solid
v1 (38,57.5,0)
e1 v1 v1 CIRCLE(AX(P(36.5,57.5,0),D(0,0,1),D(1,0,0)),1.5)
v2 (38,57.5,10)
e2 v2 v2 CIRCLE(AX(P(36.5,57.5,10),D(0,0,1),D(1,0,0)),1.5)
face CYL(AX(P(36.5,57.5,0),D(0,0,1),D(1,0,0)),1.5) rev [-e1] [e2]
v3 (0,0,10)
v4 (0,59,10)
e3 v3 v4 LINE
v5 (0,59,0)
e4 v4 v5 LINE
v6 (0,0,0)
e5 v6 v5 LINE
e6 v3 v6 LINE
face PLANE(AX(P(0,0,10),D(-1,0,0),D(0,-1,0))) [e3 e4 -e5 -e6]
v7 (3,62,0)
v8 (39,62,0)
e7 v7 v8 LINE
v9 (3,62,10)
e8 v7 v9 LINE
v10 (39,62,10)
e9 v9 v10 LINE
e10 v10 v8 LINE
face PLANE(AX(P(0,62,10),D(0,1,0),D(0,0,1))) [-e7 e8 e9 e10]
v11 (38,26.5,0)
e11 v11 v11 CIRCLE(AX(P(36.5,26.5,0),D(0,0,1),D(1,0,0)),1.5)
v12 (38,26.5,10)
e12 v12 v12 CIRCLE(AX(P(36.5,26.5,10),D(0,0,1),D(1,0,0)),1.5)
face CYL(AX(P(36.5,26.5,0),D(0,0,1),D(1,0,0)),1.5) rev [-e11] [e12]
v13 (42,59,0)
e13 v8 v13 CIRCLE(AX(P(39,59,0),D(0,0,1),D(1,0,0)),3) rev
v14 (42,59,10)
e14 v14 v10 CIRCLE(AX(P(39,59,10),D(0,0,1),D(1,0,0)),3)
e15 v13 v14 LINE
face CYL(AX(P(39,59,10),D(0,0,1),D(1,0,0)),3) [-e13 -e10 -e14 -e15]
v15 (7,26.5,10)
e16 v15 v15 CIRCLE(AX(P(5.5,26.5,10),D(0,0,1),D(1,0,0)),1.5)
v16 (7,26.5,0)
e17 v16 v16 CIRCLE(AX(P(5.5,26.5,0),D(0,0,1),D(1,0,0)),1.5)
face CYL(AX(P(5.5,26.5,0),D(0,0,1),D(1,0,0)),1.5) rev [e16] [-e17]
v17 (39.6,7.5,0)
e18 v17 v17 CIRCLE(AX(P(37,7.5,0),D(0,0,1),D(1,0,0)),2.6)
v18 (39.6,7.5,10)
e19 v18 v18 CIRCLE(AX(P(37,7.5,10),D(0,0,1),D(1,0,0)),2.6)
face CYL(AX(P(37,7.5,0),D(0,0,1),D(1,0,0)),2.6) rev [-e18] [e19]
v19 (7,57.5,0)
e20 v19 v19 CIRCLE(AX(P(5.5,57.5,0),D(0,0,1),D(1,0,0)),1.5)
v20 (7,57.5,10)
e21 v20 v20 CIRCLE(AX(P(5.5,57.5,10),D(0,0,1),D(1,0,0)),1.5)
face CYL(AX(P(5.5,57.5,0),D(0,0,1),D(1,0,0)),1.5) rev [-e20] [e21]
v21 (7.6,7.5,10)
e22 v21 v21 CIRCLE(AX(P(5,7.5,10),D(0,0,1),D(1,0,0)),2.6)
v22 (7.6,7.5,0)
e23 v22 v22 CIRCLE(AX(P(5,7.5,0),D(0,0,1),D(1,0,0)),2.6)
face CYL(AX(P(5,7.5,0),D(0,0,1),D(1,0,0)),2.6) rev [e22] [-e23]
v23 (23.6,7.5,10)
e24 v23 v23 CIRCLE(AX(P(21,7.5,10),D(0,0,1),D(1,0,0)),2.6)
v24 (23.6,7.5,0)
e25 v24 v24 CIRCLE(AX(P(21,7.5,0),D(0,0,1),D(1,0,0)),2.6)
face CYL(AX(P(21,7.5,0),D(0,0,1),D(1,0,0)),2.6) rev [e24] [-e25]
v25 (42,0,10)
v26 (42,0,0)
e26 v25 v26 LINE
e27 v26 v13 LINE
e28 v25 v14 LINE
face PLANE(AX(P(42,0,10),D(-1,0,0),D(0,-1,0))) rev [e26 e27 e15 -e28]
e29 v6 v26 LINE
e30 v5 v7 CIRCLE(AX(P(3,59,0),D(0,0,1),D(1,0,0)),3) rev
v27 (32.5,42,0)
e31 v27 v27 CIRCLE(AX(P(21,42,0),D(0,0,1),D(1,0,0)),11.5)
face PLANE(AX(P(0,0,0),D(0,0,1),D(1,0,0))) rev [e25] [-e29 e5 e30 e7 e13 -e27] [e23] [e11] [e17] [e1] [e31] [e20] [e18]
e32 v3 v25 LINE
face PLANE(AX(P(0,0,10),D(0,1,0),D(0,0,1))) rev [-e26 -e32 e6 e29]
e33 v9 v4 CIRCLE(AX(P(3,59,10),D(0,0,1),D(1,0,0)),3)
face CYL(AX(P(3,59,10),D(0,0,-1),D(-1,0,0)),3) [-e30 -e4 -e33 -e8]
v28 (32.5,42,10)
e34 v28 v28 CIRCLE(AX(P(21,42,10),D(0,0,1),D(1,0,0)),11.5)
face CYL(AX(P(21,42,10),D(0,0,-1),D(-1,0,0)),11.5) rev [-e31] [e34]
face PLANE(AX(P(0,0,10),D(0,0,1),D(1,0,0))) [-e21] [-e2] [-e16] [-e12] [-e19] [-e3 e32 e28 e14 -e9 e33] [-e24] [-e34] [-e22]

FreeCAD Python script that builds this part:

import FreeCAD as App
import Part
import Sketcher
from FreeCAD import Vector
Q = App.Units.Quantity


def edges_at(feature, points):
    """Names of the edges that pass closest to the given points."""
    edges = feature.Shape.Edges
    near = lambda p: min(range(len(edges)), key=lambda i: edges[i].distToShape(Part.Vertex(*p))[0])
    return sorted({f"Edge{near(p) + 1}" for p in points})


def add_polygon(sketch, points):
    """Adds a closed chain of lines whose ends are joined by coincident constraints."""
    first, n = sketch.GeometryCount, len(points)
    for a, b in zip(points, points[1:] + points[:1]):
        sketch.addGeometry(Part.LineSegment(App.Vector(*a, 0), App.Vector(*b, 0)), False)
    for i in range(n):
        sketch.addConstraint(Sketcher.Constraint("Coincident", first + i, 2, first + (i + 1) % n, 1))

doc = App.newDocument("Part")
body = doc.addObject("PartDesign::Body", "Body")

# Sketch on XY plane
sketch1 = body.newObject("Sketcher::SketchObject", "Sketch")
sketch1.AttachmentSupport = (doc.getObject("XY_Plane"), [""])
sketch1.MapMode = "FlatFace"
add_polygon(sketch1, [(0, 62), (0, 0), (42, 0), (42, 62)])  # lines 0-3
sketch1.addGeometry(Part.Circle(Vector(21, 42, 0), Vector(0, 0, 1), 12), False)  # 4
sketch1.addConstraint([
    Sketcher.Constraint("Vertical", 0),
    Sketcher.Constraint("Horizontal", 1),
    Sketcher.Constraint("Vertical", 2),
    Sketcher.Constraint("Horizontal", 3),
    Sketcher.Constraint("Coincident", 0, 2, -1, 1),
    Sketcher.Constraint("Diameter", 4, Q("23 mm")),
    Sketcher.Constraint("DistanceX", 1, 1, 1, 2, Q("42 mm")),
    Sketcher.Constraint("DistanceY", 0, 2, 0, 1, Q("62 mm")),
    Sketcher.Constraint("DistanceX", -1, 1, 4, 3, Q("21 mm")),
    Sketcher.Constraint("DistanceY", -1, 1, 4, 3, Q("42 mm")),
])
pad1 = body.newObject("PartDesign::Pad", "Pad")
pad1.Profile = sketch1
pad1.Length = 10
doc.recompute()

fillet = body.newObject("PartDesign::Fillet", "Fillet")
fillet.Base = (pad1, edges_at(pad1, [(0, 62, 5), (42, 62, 5)]))
fillet.Radius = 3

# Sketch on XY plane
sketch2 = body.newObject("Sketcher::SketchObject", "Sketch001")
sketch2.AttachmentSupport = (doc.getObject("XY_Plane"), [""])
sketch2.MapMode = "FlatFace"
sketch2.AttachmentOffset = App.Placement(Vector(0, 0, 10), App.Rotation())
sketch2.addGeometry([
    Part.Circle(Vector(5.5, 57.5, 0), Vector(0, 0, 1), 1.5),
    Part.Circle(Vector(36.5, 57.5, 0), Vector(0, 0, 1), 1.5),
    Part.Circle(Vector(5.5, 26.5, 0), Vector(0, 0, 1), 1.5),
    Part.Circle(Vector(36.5, 26.5, 0), Vector(0, 0, 1), 1.5),
], False)
sketch2.addConstraint([
    Sketcher.Constraint("Equal", 0, 1),
    Sketcher.Constraint("Equal", 1, 2),
    Sketcher.Constraint("Equal", 2, 3),
    Sketcher.Constraint("Horizontal", 0, 3, 1, 3),
    Sketcher.Constraint("Horizontal", 2, 3, 3, 3),
    Sketcher.Constraint("Vertical", 0, 3, 2, 3),
    Sketcher.Constraint("Vertical", 1, 3, 3, 3),
    Sketcher.Constraint("Diameter", 0, Q("3 mm")),
    Sketcher.Constraint("DistanceX", 0, 3, 1, 3, Q("31 mm")),
    Sketcher.Constraint("DistanceY", 2, 3, 0, 3, Q("31 mm")),
    Sketcher.Constraint("DistanceX", -1, 1, 0, 3, Q("5.5 mm")),
    Sketcher.Constraint("DistanceY", -1, 1, 0, 3, Q("57.5 mm")),
])
pocket1 = body.newObject("PartDesign::Pocket", "Pocket")
pocket1.Profile = sketch2
pocket1.Type = "ThroughAll"

# Sketch on XY plane
sketch3 = body.newObject("Sketcher::SketchObject", "Sketch002")
sketch3.AttachmentSupport = (doc.getObject("XY_Plane"), [""])
sketch3.MapMode = "FlatFace"
sketch3.AttachmentOffset = App.Placement(Vector(0, 0, 10), App.Rotation())
sketch3.addGeometry([
    Part.Circle(Vector(5, 7.5, 0), Vector(0, 0, 1), 2.6),
    Part.Circle(Vector(21, 7.5, 0), Vector(0, 0, 1), 2.6),
    Part.Circle(Vector(37, 7.5, 0), Vector(0, 0, 1), 2.6),
], False)
sketch3.addConstraint([
    Sketcher.Constraint("Equal", 0, 1),
    Sketcher.Constraint("Equal", 1, 2),
    Sketcher.Constraint("Horizontal", 0, 3, 1, 3),
    Sketcher.Constraint("Horizontal", 1, 3, 2, 3),
    Sketcher.Constraint("Diameter", 0, Q("5.2 mm")),
    Sketcher.Constraint("DistanceX", -1, 1, 0, 3, Q("5 mm")),
    Sketcher.Constraint("DistanceX", -1, 1, 1, 3, Q("21 mm")),
    Sketcher.Constraint("DistanceX", -1, 1, 2, 3, Q("37 mm")),
    Sketcher.Constraint("DistanceY", -1, 1, 0, 3, Q("7.5 mm")),
])
pocket2 = body.newObject("PartDesign::Pocket", "Pocket001")
pocket2.Profile = sketch3
pocket2.Type = "ThroughAll"

doc.recompute()
